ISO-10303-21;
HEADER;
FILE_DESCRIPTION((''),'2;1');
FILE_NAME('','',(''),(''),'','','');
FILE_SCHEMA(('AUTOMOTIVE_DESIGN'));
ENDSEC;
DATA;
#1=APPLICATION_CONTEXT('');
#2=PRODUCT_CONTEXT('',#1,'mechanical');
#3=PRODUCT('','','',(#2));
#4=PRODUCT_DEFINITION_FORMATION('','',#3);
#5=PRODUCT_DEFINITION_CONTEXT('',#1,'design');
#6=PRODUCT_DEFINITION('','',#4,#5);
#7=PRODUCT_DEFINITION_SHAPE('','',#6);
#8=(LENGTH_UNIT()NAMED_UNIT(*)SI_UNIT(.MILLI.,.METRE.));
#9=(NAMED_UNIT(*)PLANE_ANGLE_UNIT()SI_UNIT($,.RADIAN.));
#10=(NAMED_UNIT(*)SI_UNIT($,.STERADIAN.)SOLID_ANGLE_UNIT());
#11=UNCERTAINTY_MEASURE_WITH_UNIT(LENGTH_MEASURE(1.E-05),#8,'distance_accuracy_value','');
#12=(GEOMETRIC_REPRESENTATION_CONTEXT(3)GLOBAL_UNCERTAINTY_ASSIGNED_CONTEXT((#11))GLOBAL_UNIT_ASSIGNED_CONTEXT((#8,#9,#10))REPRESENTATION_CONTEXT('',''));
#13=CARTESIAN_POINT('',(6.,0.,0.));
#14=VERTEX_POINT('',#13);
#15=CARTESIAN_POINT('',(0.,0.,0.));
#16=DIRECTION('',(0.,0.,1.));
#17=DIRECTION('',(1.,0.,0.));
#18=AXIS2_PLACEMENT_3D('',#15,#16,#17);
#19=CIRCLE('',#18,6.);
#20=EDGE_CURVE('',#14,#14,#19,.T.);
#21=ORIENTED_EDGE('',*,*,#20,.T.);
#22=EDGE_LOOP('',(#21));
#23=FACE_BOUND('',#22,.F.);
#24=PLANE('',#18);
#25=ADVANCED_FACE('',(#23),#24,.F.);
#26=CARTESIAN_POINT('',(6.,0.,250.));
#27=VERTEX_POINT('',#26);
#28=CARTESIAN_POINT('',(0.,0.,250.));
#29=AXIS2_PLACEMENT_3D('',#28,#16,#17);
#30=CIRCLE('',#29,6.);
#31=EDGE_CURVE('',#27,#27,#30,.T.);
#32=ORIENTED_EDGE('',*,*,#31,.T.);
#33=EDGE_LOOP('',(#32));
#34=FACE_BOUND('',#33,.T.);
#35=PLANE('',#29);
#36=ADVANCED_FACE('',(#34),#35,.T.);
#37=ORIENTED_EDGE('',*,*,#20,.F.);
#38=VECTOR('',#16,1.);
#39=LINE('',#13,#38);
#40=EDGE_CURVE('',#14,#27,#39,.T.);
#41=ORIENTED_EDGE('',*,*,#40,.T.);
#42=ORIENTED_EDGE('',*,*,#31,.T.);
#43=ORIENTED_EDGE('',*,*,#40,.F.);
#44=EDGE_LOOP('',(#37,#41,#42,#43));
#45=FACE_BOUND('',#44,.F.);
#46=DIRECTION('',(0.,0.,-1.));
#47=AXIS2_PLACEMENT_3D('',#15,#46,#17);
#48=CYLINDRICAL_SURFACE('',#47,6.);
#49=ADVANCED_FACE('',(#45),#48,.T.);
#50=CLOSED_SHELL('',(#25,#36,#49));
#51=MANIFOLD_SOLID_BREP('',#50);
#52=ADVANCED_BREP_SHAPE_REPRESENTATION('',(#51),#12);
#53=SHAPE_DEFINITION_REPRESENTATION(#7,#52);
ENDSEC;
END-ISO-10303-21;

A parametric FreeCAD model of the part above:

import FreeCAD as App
import Part
import Sketcher
Q = App.Units.Quantity

doc = App.newDocument("Part")
params = doc.addObject("Spreadsheet::Sheet", "Params")
for row, (alias, value) in enumerate([
    ("sketch1_diameter", "12 mm"),
    ("pad1_length", "250 mm"),
], start=1):
    params.set(f"A{row}", alias)
    params.set(f"B{row}", "=" + value)
    params.setAlias(f"B{row}", alias)

body = doc.addObject("PartDesign::Body", "Body")

sketch1 = body.newObject("Sketcher::SketchObject", "Sketch")
sketch1.AttachmentSupport = (doc.getObject("XY_Plane"), [""])
sketch1.MapMode = "FlatFace"
sketch1.addGeometry(Part.Circle(App.Vector(0, 0, 0), App.Vector(0, 0, 1), 6), False)
sketch1.addConstraint(Sketcher.Constraint("Coincident", 0, 3, -1, 1))
sketch1.addConstraint(Sketcher.Constraint("Diameter", 0, Q("12 mm")))
sketch1.setExpression("Constraints[1]", "Params.sketch1_diameter")
pad1 = body.newObject("PartDesign::Pad", "Pad")
pad1.Profile = sketch1
pad1.setExpression("Length", "Params.pad1_length")

doc.recompute()
